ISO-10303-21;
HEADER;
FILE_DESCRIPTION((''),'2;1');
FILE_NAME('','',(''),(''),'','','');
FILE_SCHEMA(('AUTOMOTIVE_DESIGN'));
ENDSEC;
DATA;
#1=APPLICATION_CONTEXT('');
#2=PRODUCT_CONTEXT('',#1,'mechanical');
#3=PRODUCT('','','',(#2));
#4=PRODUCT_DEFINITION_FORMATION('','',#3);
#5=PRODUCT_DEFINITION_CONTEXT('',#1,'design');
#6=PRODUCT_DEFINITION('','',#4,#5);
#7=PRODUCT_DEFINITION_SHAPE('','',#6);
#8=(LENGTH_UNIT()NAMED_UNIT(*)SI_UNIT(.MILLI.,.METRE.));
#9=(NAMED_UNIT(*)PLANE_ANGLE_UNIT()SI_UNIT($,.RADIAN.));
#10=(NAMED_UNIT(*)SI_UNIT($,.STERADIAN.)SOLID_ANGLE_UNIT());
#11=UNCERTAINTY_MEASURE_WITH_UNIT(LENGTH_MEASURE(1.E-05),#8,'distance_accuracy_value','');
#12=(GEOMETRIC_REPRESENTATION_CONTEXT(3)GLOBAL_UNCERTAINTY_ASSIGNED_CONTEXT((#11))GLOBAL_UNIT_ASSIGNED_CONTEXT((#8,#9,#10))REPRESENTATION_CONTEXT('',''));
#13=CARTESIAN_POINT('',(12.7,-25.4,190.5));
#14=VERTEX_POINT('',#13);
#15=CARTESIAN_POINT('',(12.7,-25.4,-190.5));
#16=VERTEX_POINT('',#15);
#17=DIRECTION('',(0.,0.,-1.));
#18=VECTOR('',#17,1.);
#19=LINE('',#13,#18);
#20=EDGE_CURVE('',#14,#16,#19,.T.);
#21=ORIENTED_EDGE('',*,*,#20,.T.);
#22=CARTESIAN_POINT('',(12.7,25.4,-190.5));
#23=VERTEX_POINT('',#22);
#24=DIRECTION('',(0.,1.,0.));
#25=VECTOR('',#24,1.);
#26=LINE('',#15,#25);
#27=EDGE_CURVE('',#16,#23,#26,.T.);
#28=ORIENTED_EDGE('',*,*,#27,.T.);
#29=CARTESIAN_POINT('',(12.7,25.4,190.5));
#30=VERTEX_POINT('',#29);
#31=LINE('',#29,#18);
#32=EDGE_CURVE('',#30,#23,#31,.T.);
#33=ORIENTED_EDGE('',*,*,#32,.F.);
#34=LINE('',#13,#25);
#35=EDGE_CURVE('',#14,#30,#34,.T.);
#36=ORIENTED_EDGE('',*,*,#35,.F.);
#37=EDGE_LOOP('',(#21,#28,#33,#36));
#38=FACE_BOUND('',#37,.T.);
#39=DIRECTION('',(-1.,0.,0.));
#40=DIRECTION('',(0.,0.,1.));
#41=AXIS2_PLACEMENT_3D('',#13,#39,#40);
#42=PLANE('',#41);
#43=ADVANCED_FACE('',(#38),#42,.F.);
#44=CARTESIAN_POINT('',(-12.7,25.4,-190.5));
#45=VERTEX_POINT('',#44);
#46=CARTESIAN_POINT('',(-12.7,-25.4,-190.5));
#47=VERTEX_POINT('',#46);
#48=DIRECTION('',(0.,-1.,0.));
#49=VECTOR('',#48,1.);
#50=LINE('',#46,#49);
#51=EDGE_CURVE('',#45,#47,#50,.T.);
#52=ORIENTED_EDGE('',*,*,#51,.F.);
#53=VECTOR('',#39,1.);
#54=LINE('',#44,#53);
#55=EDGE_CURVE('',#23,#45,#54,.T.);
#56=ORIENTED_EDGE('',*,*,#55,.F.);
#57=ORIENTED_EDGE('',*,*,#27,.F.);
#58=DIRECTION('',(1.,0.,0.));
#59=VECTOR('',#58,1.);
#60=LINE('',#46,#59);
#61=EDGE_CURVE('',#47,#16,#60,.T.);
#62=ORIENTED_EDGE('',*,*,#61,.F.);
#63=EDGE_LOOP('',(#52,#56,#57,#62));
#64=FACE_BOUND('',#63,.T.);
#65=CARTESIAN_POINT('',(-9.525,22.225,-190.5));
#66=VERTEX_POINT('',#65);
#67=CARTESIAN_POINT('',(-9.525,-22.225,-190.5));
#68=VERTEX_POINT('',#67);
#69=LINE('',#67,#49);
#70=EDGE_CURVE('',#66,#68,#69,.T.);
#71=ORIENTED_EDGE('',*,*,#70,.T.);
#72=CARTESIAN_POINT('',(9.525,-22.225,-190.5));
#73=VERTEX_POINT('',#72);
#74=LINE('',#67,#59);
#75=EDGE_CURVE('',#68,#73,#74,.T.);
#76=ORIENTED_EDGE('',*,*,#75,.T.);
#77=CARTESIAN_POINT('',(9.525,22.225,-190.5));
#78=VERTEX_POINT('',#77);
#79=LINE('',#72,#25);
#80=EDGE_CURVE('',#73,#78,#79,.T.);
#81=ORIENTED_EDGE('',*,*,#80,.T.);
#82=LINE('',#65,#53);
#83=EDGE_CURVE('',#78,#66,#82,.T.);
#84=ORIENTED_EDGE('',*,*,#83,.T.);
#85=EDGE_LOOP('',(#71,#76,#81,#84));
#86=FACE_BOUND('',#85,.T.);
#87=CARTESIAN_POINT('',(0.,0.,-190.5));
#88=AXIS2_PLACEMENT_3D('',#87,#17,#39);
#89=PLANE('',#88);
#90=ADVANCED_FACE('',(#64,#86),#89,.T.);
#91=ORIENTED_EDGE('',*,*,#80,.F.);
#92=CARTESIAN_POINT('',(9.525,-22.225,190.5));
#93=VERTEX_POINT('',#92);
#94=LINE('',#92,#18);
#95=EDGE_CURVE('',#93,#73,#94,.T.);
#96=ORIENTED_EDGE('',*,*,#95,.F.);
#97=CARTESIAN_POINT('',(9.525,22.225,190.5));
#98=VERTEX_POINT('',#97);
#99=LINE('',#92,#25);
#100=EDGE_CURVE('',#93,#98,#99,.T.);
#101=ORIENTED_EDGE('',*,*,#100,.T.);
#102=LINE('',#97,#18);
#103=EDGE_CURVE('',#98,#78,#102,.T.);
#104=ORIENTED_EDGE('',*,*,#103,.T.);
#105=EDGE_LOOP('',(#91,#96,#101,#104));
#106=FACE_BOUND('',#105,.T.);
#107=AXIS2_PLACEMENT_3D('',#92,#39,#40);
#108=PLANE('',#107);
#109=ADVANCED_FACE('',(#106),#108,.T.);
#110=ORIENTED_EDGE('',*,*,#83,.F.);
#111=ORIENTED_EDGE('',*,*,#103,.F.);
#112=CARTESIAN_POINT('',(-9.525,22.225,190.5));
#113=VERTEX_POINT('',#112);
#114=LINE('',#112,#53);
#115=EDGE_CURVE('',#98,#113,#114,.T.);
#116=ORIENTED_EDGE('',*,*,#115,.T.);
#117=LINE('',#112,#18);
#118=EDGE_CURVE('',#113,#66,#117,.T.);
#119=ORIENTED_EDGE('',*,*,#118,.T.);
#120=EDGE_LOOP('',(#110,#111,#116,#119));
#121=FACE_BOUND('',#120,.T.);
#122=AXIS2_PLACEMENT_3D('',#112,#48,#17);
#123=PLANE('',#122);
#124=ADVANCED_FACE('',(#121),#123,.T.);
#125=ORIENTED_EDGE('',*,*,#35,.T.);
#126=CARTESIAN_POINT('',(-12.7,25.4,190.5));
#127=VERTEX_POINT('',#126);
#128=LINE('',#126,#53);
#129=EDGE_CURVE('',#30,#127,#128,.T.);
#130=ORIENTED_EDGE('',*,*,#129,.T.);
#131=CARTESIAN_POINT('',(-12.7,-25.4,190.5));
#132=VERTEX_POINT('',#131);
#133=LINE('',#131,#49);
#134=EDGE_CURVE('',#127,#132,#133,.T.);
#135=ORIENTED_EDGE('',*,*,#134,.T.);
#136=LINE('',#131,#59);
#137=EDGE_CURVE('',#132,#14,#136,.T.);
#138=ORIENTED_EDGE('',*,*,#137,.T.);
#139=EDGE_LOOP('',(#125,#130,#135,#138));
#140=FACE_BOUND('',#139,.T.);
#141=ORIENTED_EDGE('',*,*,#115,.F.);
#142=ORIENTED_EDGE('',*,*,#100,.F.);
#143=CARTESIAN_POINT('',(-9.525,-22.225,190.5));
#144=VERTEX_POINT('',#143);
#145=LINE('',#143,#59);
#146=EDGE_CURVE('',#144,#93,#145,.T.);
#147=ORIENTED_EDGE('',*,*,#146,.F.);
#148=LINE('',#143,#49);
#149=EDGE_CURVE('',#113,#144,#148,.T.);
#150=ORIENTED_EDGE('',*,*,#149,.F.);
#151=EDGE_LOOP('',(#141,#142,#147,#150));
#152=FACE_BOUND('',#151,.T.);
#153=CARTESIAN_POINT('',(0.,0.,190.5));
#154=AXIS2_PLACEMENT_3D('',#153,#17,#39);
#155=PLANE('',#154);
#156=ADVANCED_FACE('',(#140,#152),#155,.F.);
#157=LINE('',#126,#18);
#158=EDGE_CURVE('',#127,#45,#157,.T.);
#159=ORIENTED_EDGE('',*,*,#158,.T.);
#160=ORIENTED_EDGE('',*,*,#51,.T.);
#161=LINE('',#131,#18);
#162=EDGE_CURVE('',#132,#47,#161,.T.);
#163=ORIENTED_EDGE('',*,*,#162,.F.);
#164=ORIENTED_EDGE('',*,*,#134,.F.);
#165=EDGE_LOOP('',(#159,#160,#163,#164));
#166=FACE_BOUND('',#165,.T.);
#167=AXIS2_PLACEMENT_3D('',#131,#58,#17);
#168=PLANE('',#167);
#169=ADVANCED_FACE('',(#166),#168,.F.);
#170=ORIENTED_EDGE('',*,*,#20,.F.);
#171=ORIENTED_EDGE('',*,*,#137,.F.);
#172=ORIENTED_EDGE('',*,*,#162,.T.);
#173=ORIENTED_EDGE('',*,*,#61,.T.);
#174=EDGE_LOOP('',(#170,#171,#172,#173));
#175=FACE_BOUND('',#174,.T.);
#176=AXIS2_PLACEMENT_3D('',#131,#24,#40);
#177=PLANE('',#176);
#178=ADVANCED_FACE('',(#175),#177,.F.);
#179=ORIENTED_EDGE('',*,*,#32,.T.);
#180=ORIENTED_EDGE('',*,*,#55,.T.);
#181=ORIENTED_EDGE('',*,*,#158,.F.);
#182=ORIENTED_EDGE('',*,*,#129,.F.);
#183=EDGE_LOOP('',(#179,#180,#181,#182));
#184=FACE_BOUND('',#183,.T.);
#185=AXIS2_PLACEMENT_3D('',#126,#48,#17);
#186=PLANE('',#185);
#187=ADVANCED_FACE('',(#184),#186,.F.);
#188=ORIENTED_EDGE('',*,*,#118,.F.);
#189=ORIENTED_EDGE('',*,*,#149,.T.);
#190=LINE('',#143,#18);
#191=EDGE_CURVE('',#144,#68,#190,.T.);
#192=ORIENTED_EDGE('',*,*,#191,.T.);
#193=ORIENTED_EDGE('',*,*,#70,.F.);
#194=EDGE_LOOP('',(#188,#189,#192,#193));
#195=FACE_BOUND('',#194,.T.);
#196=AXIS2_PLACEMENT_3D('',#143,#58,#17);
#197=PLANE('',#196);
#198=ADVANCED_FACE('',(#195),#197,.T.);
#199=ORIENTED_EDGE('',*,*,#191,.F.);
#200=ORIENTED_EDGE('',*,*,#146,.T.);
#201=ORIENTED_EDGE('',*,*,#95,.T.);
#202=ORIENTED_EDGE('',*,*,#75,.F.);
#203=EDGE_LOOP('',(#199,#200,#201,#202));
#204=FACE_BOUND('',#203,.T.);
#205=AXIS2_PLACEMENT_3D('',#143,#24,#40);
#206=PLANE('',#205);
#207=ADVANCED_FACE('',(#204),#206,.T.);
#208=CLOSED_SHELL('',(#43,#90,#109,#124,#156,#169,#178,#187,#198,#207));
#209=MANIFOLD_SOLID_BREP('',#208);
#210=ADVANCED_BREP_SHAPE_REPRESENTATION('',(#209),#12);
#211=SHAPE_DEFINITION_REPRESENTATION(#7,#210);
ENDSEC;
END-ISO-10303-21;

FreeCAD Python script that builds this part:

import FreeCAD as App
import Part
import Sketcher
Q = App.Units.Quantity

doc = App.newDocument("Part")
params = doc.addObject("Spreadsheet::Sheet", "Params")
for row, (alias, value) in enumerate([
    ("sketch1_width", "1 in"),
    ("sketch1_height", "2 in"),
    ("sketch1_width2", "0.75 in"),
    ("sketch1_height2", "1.75 in"),
    ("pad1_length", "15 in"),
], start=1):
    params.set(f"A{row}", alias)
    params.set(f"B{row}", "=" + value)
    params.setAlias(f"B{row}", alias)

body = doc.addObject("PartDesign::Body", "Body")

sketch1 = body.newObject("Sketcher::SketchObject", "Sketch")
sketch1.AttachmentSupport = (doc.getObject("XY_Plane"), [""])
sketch1.MapMode = "FlatFace"
sketch1.addGeometry([
    Part.LineSegment(App.Vector(-12.7, 25.4, 0), App.Vector(-12.7, -25.4, 0)),
    Part.LineSegment(App.Vector(-12.7, -25.4, 0), App.Vector(12.7, -25.4, 0)),
    Part.LineSegment(App.Vector(12.7, -25.4, 0), App.Vector(12.7, 25.4, 0)),
    Part.LineSegment(App.Vector(12.7, 25.4, 0), App.Vector(-12.7, 25.4, 0)),
    Part.LineSegment(App.Vector(9.525, -22.225, 0), App.Vector(-9.525, -22.225, 0)),
    Part.LineSegment(App.Vector(-9.525, -22.225, 0), App.Vector(-9.525, 22.225, 0)),
    Part.LineSegment(App.Vector(-9.525, 22.225, 0), App.Vector(9.525, 22.225, 0)),
    Part.LineSegment(App.Vector(9.525, 22.225, 0), App.Vector(9.525, -22.225, 0)),
], False)
sketch1.addConstraint([
    Sketcher.Constraint("Coincident", 0, 2, 1, 1),
    Sketcher.Constraint("Coincident", 1, 2, 2, 1),
    Sketcher.Constraint("Coincident", 2, 2, 3, 1),
    Sketcher.Constraint("Coincident", 3, 2, 0, 1),
    Sketcher.Constraint("Coincident", 4, 2, 5, 1),
    Sketcher.Constraint("Coincident", 5, 2, 6, 1),
    Sketcher.Constraint("Coincident", 6, 2, 7, 1),
    Sketcher.Constraint("Coincident", 7, 2, 4, 1),
    Sketcher.Constraint("Vertical", 0),
    Sketcher.Constraint("Horizontal", 1),
    Sketcher.Constraint("Vertical", 2),
    Sketcher.Constraint("Horizontal", 3),
    Sketcher.Constraint("Horizontal", 4),
    Sketcher.Constraint("Vertical", 5),
    Sketcher.Constraint("Horizontal", 6),
    Sketcher.Constraint("Vertical", 7),
    Sketcher.Constraint("Symmetric", 0, 2, 2, 2, -1, 1),
    Sketcher.Constraint("Symmetric", 4, 2, 6, 2, -1, 1),
    Sketcher.Constraint("DistanceX", 1, 1, 1, 2, Q("1 in")),
    Sketcher.Constraint("DistanceY", 0, 2, 0, 1, Q("2 in")),
    Sketcher.Constraint("DistanceX", 4, 2, 4, 1, Q("0.75 in")),
    Sketcher.Constraint("DistanceY", 5, 1, 5, 2, Q("1.75 in")),
])
sketch1.setExpression("Constraints[18]", "Params.sketch1_width")
sketch1.setExpression("Constraints[19]", "Params.sketch1_height")
sketch1.setExpression("Constraints[20]", "Params.sketch1_width2")
sketch1.setExpression("Constraints[21]", "Params.sketch1_height2")
pad1 = body.newObject("PartDesign::Pad", "Pad")
pad1.Profile = sketch1
pad1.setExpression("Length", "Params.pad1_length")
pad1.Midplane = True

doc.recompute()
